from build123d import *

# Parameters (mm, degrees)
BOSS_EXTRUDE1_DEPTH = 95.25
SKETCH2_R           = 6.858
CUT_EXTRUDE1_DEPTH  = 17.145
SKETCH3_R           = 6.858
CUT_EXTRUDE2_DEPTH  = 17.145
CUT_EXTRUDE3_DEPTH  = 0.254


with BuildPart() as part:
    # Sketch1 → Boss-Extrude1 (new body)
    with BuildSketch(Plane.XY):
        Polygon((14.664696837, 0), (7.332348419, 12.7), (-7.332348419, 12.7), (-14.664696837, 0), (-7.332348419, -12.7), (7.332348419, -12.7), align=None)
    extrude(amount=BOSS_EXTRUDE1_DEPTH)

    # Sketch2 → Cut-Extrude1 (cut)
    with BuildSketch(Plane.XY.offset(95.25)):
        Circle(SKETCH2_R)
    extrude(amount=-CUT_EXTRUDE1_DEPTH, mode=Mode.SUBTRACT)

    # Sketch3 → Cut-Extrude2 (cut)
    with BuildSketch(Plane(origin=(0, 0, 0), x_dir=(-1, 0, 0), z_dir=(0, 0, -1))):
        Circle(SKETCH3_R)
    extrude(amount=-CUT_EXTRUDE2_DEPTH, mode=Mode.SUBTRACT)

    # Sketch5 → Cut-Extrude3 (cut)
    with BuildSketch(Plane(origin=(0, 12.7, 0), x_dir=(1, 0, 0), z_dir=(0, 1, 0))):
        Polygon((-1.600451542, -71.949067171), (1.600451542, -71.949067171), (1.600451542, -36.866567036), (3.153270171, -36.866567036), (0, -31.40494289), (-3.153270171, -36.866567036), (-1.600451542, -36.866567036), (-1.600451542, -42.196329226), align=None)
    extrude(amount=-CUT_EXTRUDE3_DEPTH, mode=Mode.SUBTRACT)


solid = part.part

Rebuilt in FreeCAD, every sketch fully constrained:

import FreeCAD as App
import Part
import Sketcher
Q = App.Units.Quantity


def add_polygon(sketch, points):
    """Adds a closed chain of lines whose ends are joined by coincident constraints."""
    first, n = sketch.GeometryCount, len(points)
    for a, b in zip(points, points[1:] + points[:1]):
        sketch.addGeometry(Part.LineSegment(App.Vector(*a, 0), App.Vector(*b, 0)), False)
    for i in range(n):
        sketch.addConstraint(Sketcher.Constraint("Coincident", first + i, 2, first + (i + 1) % n, 1))

doc = App.newDocument("Part")
params = doc.addObject("Spreadsheet::Sheet", "Params")
for row, (alias, value) in enumerate([
    ("pad1_length", "3.75 in"),
    ("sketch2_diameter", "0.54 in"),
    ("pocket1_length", "0.675 in"),
    ("sketch3_diameter", "0.54 in"),
    ("pocket2_length", "0.675 in"),
    ("pocket3_length", "0.01 in"),
], start=1):
    params.set(f"A{row}", alias)
    params.set(f"B{row}", "=" + value)
    params.setAlias(f"B{row}", alias)

body = doc.addObject("PartDesign::Body", "Body")

# Sketch on XY plane
sketch1 = doc.addObject("Sketcher::SketchObject", "Sketch")
body.addObject(sketch1)
sketch1.AttachmentSupport = (doc.XY_Plane, [""])
sketch1.MapMode = "FlatFace"
add_polygon(sketch1, [(15, 0), (7, 13), (-7, 13), (-15, 0), (-7, -13), (7, -13)])  # lines 0-5
sketch1.addConstraint(Sketcher.Constraint("Horizontal", 1))
sketch1.addConstraint(Sketcher.Constraint("Horizontal", 4))
sketch1.addConstraint(Sketcher.Constraint("Symmetric", 0, 2, 3, 2, -1, 1))
sketch1.addConstraint(Sketcher.Constraint("Symmetric", 2, 2, 5, 2, -1, 1))
sketch1.addConstraint(Sketcher.Constraint("PointOnObject", 2, 2, -1))
sketch1.addConstraint(Sketcher.Constraint("Parallel", 2, 5))
sketch1.addConstraint(Sketcher.Constraint("Vertical", 1, 2, 3, 2))
sketch1.addConstraint(Sketcher.Constraint("Angle", 0, Q("120 deg")))
sketch1.addConstraint(Sketcher.Constraint("DistanceY", 3, 2, 1, 2, Q("1 in")))
sketch1.addConstraint(Sketcher.Constraint("DistanceX", 1, 2, 1, 1, 14.664697))
pad1 = doc.addObject("PartDesign::Pad", "Pad")
body.addObject(pad1)
pad1.Profile = sketch1
pad1.setExpression("Length", "Params.pad1_length")

# Sketch on XY plane
sketch2 = doc.addObject("Sketcher::SketchObject", "Sketch001")
body.addObject(sketch2)
sketch2.AttachmentSupport = (doc.XY_Plane, [""])
sketch2.MapMode = "FlatFace"
sketch2.AttachmentOffset = App.Placement(App.Vector(0, 0, 3.75 * 25.4), App.Rotation())
sketch2.addGeometry(Part.Circle(App.Vector(0, 0, 0), App.Vector(0, 0, 1), 7), False)
sketch2.addConstraint(Sketcher.Constraint("Coincident", 0, 3, -1, 1))
sketch2.addConstraint(Sketcher.Constraint("Diameter", 0, Q("0.54 in")))
sketch2.setExpression("Constraints[1]", "Params.sketch2_diameter")
pocket1 = doc.addObject("PartDesign::Pocket", "Pocket")
body.addObject(pocket1)
pocket1.Profile = sketch2
pocket1.setExpression("Length", "Params.pocket1_length")

# Sketch on XY plane
sketch3 = doc.addObject("Sketcher::SketchObject", "Sketch002")
body.addObject(sketch3)
sketch3.AttachmentSupport = (doc.XY_Plane, [""])
sketch3.MapMode = "FlatFace"
sketch3.addGeometry(Part.Circle(App.Vector(0, 0, 0), App.Vector(0, 0, 1), 7), False)
sketch3.addConstraint(Sketcher.Constraint("Coincident", 0, 3, -1, 1))
sketch3.addConstraint(Sketcher.Constraint("Diameter", 0, Q("0.54 in")))
sketch3.setExpression("Constraints[1]", "Params.sketch3_diameter")
pocket2 = doc.addObject("PartDesign::Pocket", "Pocket001")
body.addObject(pocket2)
pocket2.Profile = sketch3
pocket2.setExpression("Length", "Params.pocket2_length")
pocket2.Reversed = True

# Sketch on XZ plane
sketch4 = doc.addObject("Sketcher::SketchObject", "Sketch003")
body.addObject(sketch4)
sketch4.AttachmentSupport = (doc.XZ_Plane, [""])
sketch4.MapMode = "FlatFace"
sketch4.AttachmentOffset = App.Placement(App.Vector(0, 0, -0.5 * 25.4), App.Rotation())
add_polygon(sketch4, [(-1.6, 71.9), (1.6, 71.9), (1.6, 36.9), (3.2, 36.9), (0, 31.4), (-3.2, 36.9), (-1.6, 36.9)])  # lines 0-6
sketch4.addConstraint(Sketcher.Constraint("Horizontal", 0))
sketch4.addConstraint(Sketcher.Constraint("Vertical", 1))
sketch4.addConstraint(Sketcher.Constraint("Horizontal", 2))
sketch4.addConstraint(Sketcher.Constraint("Horizontal", 5))
sketch4.addConstraint(Sketcher.Constraint("Vertical", 6))
sketch4.addConstraint(Sketcher.Constraint("Symmetric", 2, 2, 4, 2, -2))
sketch4.addConstraint(Sketcher.Constraint("PointOnObject", 3, 2, -2))
sketch4.addConstraint(Sketcher.Constraint("Equal", 2, 5))
sketch4.addConstraint(Sketcher.Constraint("Angle", 3, Q("-120 deg")))
sketch4.addConstraint(Sketcher.Constraint("DistanceY", 1, 2, 1, 1, 35.0825))
sketch4.addConstraint(Sketcher.Constraint("DistanceX", 2, 1, 2, 2, 1.552819))
sketch4.addConstraint(Sketcher.Constraint("Distance", 3, 6.30654))
sketch4.addConstraint(Sketcher.Constraint("DistanceY", -1, 1, 0, 2, 71.949067))
pocket3 = doc.addObject("PartDesign::Pocket", "Pocket002")
body.addObject(pocket3)
pocket3.Profile = sketch4
pocket3.setExpression("Length", "Params.pocket3_length")
pocket3.Reversed = True

doc.recompute()
